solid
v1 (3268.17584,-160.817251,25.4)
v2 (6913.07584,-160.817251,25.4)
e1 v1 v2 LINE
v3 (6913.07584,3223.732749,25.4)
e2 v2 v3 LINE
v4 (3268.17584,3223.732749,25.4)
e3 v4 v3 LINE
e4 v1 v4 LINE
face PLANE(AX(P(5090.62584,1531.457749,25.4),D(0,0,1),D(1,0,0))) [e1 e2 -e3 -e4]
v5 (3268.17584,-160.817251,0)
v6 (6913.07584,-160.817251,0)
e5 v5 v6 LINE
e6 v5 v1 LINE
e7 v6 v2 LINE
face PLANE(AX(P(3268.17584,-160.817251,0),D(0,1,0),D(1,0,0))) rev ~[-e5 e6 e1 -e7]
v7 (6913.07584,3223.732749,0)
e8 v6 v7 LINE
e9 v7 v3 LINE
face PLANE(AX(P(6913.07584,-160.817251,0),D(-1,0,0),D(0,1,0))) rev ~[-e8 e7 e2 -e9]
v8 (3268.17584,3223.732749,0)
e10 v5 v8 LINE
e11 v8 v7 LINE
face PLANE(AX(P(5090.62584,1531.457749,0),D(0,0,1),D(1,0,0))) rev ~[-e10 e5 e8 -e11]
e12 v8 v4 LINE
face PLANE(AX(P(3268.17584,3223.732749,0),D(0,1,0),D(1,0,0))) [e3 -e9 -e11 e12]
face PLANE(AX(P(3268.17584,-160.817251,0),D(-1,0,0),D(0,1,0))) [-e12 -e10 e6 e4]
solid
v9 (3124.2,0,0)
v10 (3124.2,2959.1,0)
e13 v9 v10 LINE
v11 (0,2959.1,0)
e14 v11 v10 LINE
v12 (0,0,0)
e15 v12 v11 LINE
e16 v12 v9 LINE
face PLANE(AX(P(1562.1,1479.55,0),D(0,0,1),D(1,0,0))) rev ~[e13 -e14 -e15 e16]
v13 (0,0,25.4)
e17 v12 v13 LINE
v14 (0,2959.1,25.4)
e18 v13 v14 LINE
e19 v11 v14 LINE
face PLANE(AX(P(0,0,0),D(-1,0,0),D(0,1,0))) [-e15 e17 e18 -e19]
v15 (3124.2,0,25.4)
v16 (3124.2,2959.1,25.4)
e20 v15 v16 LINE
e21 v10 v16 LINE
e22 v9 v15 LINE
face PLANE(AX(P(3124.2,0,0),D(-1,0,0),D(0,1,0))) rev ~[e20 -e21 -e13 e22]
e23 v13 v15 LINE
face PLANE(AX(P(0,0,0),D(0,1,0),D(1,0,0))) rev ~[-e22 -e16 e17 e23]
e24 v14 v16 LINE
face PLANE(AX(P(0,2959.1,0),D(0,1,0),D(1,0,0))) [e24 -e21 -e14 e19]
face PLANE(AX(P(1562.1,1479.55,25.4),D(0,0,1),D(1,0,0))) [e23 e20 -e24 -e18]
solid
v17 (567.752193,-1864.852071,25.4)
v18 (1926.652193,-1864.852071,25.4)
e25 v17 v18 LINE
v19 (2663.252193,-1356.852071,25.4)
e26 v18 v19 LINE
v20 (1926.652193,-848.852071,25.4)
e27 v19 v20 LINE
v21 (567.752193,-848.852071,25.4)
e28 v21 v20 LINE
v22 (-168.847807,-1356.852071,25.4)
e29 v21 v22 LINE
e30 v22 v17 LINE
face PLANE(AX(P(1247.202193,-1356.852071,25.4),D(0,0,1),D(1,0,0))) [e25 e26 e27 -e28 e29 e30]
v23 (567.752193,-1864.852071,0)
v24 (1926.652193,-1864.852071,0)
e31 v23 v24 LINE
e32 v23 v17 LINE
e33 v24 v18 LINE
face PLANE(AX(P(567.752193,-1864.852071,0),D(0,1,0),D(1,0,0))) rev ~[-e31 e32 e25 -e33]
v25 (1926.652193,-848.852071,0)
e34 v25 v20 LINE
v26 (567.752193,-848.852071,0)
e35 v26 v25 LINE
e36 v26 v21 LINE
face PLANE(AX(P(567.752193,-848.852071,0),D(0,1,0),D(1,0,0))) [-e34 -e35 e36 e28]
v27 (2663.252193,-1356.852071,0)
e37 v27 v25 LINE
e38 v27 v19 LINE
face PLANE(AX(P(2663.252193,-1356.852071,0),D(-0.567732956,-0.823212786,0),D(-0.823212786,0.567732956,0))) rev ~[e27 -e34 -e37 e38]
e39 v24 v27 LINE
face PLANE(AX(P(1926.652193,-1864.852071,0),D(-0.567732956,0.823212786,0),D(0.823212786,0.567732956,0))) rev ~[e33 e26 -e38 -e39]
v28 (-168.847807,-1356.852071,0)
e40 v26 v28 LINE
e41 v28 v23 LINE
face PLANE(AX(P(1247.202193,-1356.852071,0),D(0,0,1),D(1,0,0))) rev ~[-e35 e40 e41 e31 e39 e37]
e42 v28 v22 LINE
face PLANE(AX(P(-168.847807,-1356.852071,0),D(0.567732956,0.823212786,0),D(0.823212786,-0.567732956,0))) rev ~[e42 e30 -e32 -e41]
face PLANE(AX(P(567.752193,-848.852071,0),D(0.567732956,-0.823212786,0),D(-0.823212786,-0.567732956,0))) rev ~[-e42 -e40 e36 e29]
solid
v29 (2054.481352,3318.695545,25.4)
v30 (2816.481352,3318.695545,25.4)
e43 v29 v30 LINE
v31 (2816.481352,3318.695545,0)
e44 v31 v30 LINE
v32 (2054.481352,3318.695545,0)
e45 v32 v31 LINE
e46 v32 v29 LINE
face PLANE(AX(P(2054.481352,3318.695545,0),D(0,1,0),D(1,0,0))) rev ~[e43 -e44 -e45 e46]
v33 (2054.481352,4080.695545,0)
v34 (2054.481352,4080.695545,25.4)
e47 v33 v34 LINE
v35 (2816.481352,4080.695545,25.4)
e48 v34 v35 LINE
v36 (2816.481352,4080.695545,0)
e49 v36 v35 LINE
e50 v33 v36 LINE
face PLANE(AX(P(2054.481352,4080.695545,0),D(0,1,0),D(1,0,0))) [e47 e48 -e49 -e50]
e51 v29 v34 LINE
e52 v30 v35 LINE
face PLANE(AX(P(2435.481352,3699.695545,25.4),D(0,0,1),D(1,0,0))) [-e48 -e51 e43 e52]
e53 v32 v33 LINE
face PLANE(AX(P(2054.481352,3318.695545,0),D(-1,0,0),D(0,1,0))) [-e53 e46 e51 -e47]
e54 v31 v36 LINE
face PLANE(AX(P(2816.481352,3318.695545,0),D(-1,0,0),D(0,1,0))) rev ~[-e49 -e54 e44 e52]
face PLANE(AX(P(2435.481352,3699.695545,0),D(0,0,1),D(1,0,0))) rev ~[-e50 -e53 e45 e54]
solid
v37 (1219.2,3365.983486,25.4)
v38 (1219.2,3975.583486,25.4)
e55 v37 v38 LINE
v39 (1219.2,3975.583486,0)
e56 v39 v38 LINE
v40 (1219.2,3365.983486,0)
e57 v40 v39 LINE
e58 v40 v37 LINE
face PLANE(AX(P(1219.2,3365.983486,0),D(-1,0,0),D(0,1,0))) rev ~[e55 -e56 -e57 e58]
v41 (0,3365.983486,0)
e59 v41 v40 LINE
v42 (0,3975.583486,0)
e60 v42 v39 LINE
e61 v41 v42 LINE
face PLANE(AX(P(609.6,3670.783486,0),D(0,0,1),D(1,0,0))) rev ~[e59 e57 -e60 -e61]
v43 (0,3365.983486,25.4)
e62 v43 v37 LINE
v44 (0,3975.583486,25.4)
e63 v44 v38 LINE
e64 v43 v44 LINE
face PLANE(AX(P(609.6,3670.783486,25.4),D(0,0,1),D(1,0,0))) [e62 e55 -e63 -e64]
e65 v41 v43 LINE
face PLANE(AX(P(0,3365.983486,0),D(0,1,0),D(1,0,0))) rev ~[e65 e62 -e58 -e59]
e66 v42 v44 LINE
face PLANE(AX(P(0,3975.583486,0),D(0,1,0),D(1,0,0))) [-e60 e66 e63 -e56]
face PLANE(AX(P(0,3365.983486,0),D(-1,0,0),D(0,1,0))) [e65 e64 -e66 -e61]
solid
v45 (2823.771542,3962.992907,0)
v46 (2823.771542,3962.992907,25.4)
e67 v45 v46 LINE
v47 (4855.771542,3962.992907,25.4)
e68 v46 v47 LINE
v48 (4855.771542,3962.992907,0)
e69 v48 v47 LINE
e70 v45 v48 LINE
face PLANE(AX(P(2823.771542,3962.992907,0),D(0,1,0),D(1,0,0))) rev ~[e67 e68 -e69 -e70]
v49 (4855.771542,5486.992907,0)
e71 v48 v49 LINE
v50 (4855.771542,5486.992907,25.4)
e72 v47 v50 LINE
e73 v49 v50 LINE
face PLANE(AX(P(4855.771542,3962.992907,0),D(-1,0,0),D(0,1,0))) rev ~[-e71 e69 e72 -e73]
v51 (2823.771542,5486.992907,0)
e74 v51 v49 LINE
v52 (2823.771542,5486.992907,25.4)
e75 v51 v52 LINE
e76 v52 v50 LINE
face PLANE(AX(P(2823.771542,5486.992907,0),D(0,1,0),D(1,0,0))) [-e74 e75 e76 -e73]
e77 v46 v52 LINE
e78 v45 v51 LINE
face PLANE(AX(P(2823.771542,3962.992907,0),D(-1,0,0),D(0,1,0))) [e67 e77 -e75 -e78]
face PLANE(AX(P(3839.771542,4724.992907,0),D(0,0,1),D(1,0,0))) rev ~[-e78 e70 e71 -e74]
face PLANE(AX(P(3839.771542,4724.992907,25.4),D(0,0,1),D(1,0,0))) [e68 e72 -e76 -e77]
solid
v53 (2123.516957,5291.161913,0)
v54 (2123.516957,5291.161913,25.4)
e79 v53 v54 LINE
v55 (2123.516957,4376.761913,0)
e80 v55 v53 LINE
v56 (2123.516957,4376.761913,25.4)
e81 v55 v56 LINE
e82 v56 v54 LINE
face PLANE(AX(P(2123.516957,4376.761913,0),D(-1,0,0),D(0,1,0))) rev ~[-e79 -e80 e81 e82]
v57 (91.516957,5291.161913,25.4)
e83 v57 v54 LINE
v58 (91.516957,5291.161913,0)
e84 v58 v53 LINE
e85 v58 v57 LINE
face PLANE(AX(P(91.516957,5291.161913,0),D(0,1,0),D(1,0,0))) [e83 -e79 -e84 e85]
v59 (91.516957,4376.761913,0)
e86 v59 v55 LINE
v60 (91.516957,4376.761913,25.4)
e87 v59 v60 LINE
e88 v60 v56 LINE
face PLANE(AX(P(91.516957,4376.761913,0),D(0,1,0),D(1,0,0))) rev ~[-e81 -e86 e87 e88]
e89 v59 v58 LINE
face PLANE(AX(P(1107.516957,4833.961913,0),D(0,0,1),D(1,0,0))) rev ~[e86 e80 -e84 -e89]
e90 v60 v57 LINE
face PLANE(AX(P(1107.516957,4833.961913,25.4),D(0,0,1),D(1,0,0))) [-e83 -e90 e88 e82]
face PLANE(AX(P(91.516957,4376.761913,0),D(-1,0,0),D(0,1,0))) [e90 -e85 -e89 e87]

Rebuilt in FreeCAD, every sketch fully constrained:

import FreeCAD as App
import Part
import Sketcher
from FreeCAD import Vector
Q = App.Units.Quantity

doc = App.newDocument("Part")
body = doc.addObject("PartDesign::Body", "Body")

# Sketch on XY plane
sketch1 = body.newObject("Sketcher::SketchObject", "Sketch")
sketch1.AttachmentSupport = (doc.getObject("XY_Plane"), [""])
sketch1.MapMode = "FlatFace"
sketch1.addGeometry(Part.LineSegment(Vector(0, 2959.1, 0), Vector(0, 0, 0)), False)
sketch1.addGeometry(Part.LineSegment(Vector(0, 0, 0), Vector(3124.2, 0, 0)), False)
sketch1.addGeometry(Part.LineSegment(Vector(3124.2, 0, 0), Vector(3124.2, 2959.1, 0)), False)
sketch1.addGeometry(Part.LineSegment(Vector(3124.2, 2959.1, 0), Vector(0, 2959.1, 0)), False)
sketch1.addConstraint(Sketcher.Constraint("Coincident", 0, 2, 1, 1))
sketch1.addConstraint(Sketcher.Constraint("Coincident", 1, 2, 2, 1))
sketch1.addConstraint(Sketcher.Constraint("Coincident", 2, 2, 3, 1))
sketch1.addConstraint(Sketcher.Constraint("Coincident", 3, 2, 0, 1))
sketch1.addConstraint(Sketcher.Constraint("Vertical", 0))
sketch1.addConstraint(Sketcher.Constraint("Horizontal", 1))
sketch1.addConstraint(Sketcher.Constraint("Vertical", 2))
sketch1.addConstraint(Sketcher.Constraint("Horizontal", 3))
sketch1.addConstraint(Sketcher.Constraint("Coincident", 0, 2, -1, 1))
sketch1.addConstraint(Sketcher.Constraint("DistanceX", 1, 1, 1, 2, Q("123 in")))
sketch1.addConstraint(Sketcher.Constraint("DistanceY", 0, 2, 0, 1, Q("116.5 in")))
pad1 = body.newObject("PartDesign::Pad", "Pad")
pad1.Profile = sketch1
pad1.Length = Q("1 in")
body2 = doc.addObject("PartDesign::Body", "Body001")

# Sketch on XY plane
sketch2 = body2.newObject("Sketcher::SketchObject", "Sketch001")
sketch2.AttachmentSupport = (doc.getObject("XY_Plane001"), [""])
sketch2.MapMode = "FlatFace"
sketch2.addGeometry(Part.LineSegment(Vector(3268.17584, 3223.732749, 0), Vector(3268.17584, -160.817251, 0)), False)
sketch2.addGeometry(Part.LineSegment(Vector(3268.17584, -160.817251, 0), Vector(6913.07584, -160.817251, 0)), False)
sketch2.addGeometry(Part.LineSegment(Vector(6913.07584, -160.817251, 0), Vector(6913.07584, 3223.732749, 0)), False)
sketch2.addGeometry(Part.LineSegment(Vector(6913.07584, 3223.732749, 0), Vector(3268.17584, 3223.732749, 0)), False)
sketch2.addConstraint(Sketcher.Constraint("Coincident", 0, 2, 1, 1))
sketch2.addConstraint(Sketcher.Constraint("Coincident", 1, 2, 2, 1))
sketch2.addConstraint(Sketcher.Constraint("Coincident", 2, 2, 3, 1))
sketch2.addConstraint(Sketcher.Constraint("Coincident", 3, 2, 0, 1))
sketch2.addConstraint(Sketcher.Constraint("Vertical", 0))
sketch2.addConstraint(Sketcher.Constraint("Horizontal", 1))
sketch2.addConstraint(Sketcher.Constraint("Vertical", 2))
sketch2.addConstraint(Sketcher.Constraint("Horizontal", 3))
sketch2.addConstraint(Sketcher.Constraint("DistanceX", 1, 1, 1, 2, Q("143.5 in")))
sketch2.addConstraint(Sketcher.Constraint("DistanceY", 0, 2, 0, 1, Q("133.25 in")))
sketch2.addConstraint(Sketcher.Constraint("DistanceX", -1, 1, 0, 2, Q("3268.17584 mm")))
sketch2.addConstraint(Sketcher.Constraint("DistanceY", 0, 2, -1, 1, Q("160.817251 mm")))
pad2 = body2.newObject("PartDesign::Pad", "Pad001")
pad2.Profile = sketch2
pad2.Length = Q("1 in")
body3 = doc.addObject("PartDesign::Body", "Body002")

# Sketch on XY plane
sketch3 = body3.newObject("Sketcher::SketchObject", "Sketch002")
sketch3.AttachmentSupport = (doc.getObject("XY_Plane002"), [""])
sketch3.MapMode = "FlatFace"
sketch3.addGeometry(Part.LineSegment(Vector(567.752193, -1864.852071, 0), Vector(1926.652193, -1864.852071, 0)), False)
sketch3.addGeometry(Part.LineSegment(Vector(1926.652193, -1864.852071, 0), Vector(2663.252193, -1356.852071, 0)), False)
sketch3.addGeometry(Part.LineSegment(Vector(2663.252193, -1356.852071, 0), Vector(1926.652193, -848.852071, 0)), False)
sketch3.addGeometry(Part.LineSegment(Vector(1926.652193, -848.852071, 0), Vector(567.752193, -848.852071, 0)), False)
sketch3.addGeometry(Part.LineSegment(Vector(567.752193, -848.852071, 0), Vector(-168.847807, -1356.852071, 0)), False)
sketch3.addGeometry(Part.LineSegment(Vector(-168.847807, -1356.852071, 0), Vector(567.752193, -1864.852071, 0)), False)
sketch3.addConstraint(Sketcher.Constraint("Coincident", 0, 2, 1, 1))
sketch3.addConstraint(Sketcher.Constraint("Coincident", 1, 2, 2, 1))
sketch3.addConstraint(Sketcher.Constraint("Coincident", 2, 2, 3, 1))
sketch3.addConstraint(Sketcher.Constraint("Coincident", 3, 2, 4, 1))
sketch3.addConstraint(Sketcher.Constraint("Coincident", 4, 2, 5, 1))
sketch3.addConstraint(Sketcher.Constraint("Coincident", 5, 2, 0, 1))
sketch3.addConstraint(Sketcher.Constraint("Horizontal", 0))
sketch3.addConstraint(Sketcher.Constraint("Horizontal", 3))
sketch3.addConstraint(Sketcher.Constraint("Parallel", 1, 4))
sketch3.addConstraint(Sketcher.Constraint("Parallel", 2, 5))
sketch3.addConstraint(Sketcher.Constraint("Horizontal", 1, 2, 4, 2))
sketch3.addConstraint(Sketcher.Constraint("Vertical", 0, 2, 2, 2))
sketch3.addConstraint(Sketcher.Constraint("Vertical", 3, 2, 5, 2))
sketch3.addConstraint(Sketcher.Constraint("DistanceX", 0, 1, 0, 2, Q("53.5 in")))
sketch3.addConstraint(Sketcher.Constraint("DistanceX", 0, 2, 1, 2, Q("29 in")))
sketch3.addConstraint(Sketcher.Constraint("DistanceY", 0, 2, 1, 2, Q("20 in")))
sketch3.addConstraint(Sketcher.Constraint("DistanceY", 0, 2, -1, 1, Q("1864.852071 mm")))
sketch3.addConstraint(Sketcher.Constraint("DistanceX", -1, 1, 0, 2, Q("1926.652193 mm")))
pad3 = body3.newObject("PartDesign::Pad", "Pad002")
pad3.Profile = sketch3
pad3.Length = Q("1 in")
body4 = doc.addObject("PartDesign::Body", "Body003")

# Sketch on XY plane
sketch4 = body4.newObject("Sketcher::SketchObject", "Sketch003")
sketch4.AttachmentSupport = (doc.getObject("XY_Plane003"), [""])
sketch4.MapMode = "FlatFace"
sketch4.addGeometry(Part.LineSegment(Vector(0, 3975.583486, 0), Vector(0, 3365.983486, 0)), False)
sketch4.addGeometry(Part.LineSegment(Vector(0, 3365.983486, 0), Vector(1219.2, 3365.983486, 0)), False)
sketch4.addGeometry(Part.LineSegment(Vector(1219.2, 3365.983486, 0), Vector(1219.2, 3975.583486, 0)), False)
sketch4.addGeometry(Part.LineSegment(Vector(1219.2, 3975.583486, 0), Vector(0, 3975.583486, 0)), False)
sketch4.addConstraint(Sketcher.Constraint("Coincident", 0, 2, 1, 1))
sketch4.addConstraint(Sketcher.Constraint("Coincident", 1, 2, 2, 1))
sketch4.addConstraint(Sketcher.Constraint("Coincident", 2, 2, 3, 1))
sketch4.addConstraint(Sketcher.Constraint("Coincident", 3, 2, 0, 1))
sketch4.addConstraint(Sketcher.Constraint("Vertical", 0))
sketch4.addConstraint(Sketcher.Constraint("Horizontal", 1))
sketch4.addConstraint(Sketcher.Constraint("Vertical", 2))
sketch4.addConstraint(Sketcher.Constraint("Horizontal", 3))
sketch4.addConstraint(Sketcher.Constraint("PointOnObject", 0, 2, -2))
sketch4.addConstraint(Sketcher.Constraint("DistanceX", 1, 1, 1, 2, Q("48 in")))
sketch4.addConstraint(Sketcher.Constraint("DistanceY", 0, 2, 0, 1, Q("24 in")))
sketch4.addConstraint(Sketcher.Constraint("DistanceY", -1, 1, 0, 2, Q("3365.983486 mm")))
pad4 = body4.newObject("PartDesign::Pad", "Pad003")
pad4.Profile = sketch4
pad4.Length = Q("1 in")
body5 = doc.addObject("PartDesign::Body", "Body004")

# Sketch on XY plane
sketch5 = body5.newObject("Sketcher::SketchObject", "Sketch004")
sketch5.AttachmentSupport = (doc.getObject("XY_Plane004"), [""])
sketch5.MapMode = "FlatFace"
sketch5.addGeometry(Part.LineSegment(Vector(91.516957, 5291.161913, 0), Vector(91.516957, 4376.761913, 0)), False)
sketch5.addGeometry(Part.LineSegment(Vector(91.516957, 4376.761913, 0), Vector(2123.516957, 4376.761913, 0)), False)
sketch5.addGeometry(Part.LineSegment(Vector(2123.516957, 4376.761913, 0), Vector(2123.516957, 5291.161913, 0)), False)
sketch5.addGeometry(Part.LineSegment(Vector(2123.516957, 5291.161913, 0), Vector(91.516957, 5291.161913, 0)), False)
sketch5.addConstraint(Sketcher.Constraint("Coincident", 0, 2, 1, 1))
sketch5.addConstraint(Sketcher.Constraint("Coincident", 1, 2, 2, 1))
sketch5.addConstraint(Sketcher.Constraint("Coincident", 2, 2, 3, 1))
sketch5.addConstraint(Sketcher.Constraint("Coincident", 3, 2, 0, 1))
sketch5.addConstraint(Sketcher.Constraint("Vertical", 0))
sketch5.addConstraint(Sketcher.Constraint("Horizontal", 1))
sketch5.addConstraint(Sketcher.Constraint("Vertical", 2))
sketch5.addConstraint(Sketcher.Constraint("Horizontal", 3))
sketch5.addConstraint(Sketcher.Constraint("DistanceX", 1, 1, 1, 2, Q("80 in")))
sketch5.addConstraint(Sketcher.Constraint("DistanceY", 0, 2, 0, 1, Q("36 in")))
sketch5.addConstraint(Sketcher.Constraint("DistanceX", -1, 1, 0, 2, Q("91.516957 mm")))
sketch5.addConstraint(Sketcher.Constraint("DistanceY", -1, 1, 0, 2, Q("4376.761913 mm")))
pad5 = body5.newObject("PartDesign::Pad", "Pad004")
pad5.Profile = sketch5
pad5.Length = Q("1 in")
body6 = doc.addObject("PartDesign::Body", "Body005")

# Sketch on XY plane
sketch6 = body6.newObject("Sketcher::SketchObject", "Sketch005")
sketch6.AttachmentSupport = (doc.getObject("XY_Plane005"), [""])
sketch6.MapMode = "FlatFace"
sketch6.addGeometry(Part.LineSegment(Vector(2054.481352, 4080.695545, 0), Vector(2054.481352, 3318.695545, 0)), False)
sketch6.addGeometry(Part.LineSegment(Vector(2054.481352, 3318.695545, 0), Vector(2816.481352, 3318.695545, 0)), False)
sketch6.addGeometry(Part.LineSegment(Vector(2816.481352, 3318.695545, 0), Vector(2816.481352, 4080.695545, 0)), False)
sketch6.addGeometry(Part.LineSegment(Vector(2816.481352, 4080.695545, 0), Vector(2054.481352, 4080.695545, 0)), False)
sketch6.addConstraint(Sketcher.Constraint("Coincident", 0, 2, 1, 1))
sketch6.addConstraint(Sketcher.Constraint("Coincident", 1, 2, 2, 1))
sketch6.addConstraint(Sketcher.Constraint("Coincident", 2, 2, 3, 1))
sketch6.addConstraint(Sketcher.Constraint("Coincident", 3, 2, 0, 1))
sketch6.addConstraint(Sketcher.Constraint("Vertical", 0))
sketch6.addConstraint(Sketcher.Constraint("Horizontal", 1))
sketch6.addConstraint(Sketcher.Constraint("Vertical", 2))
sketch6.addConstraint(Sketcher.Constraint("Horizontal", 3))
sketch6.addConstraint(Sketcher.Constraint("Equal", 3, 0))
sketch6.addConstraint(Sketcher.Constraint("DistanceX", 1, 1, 1, 2, Q("30 in")))
sketch6.addConstraint(Sketcher.Constraint("DistanceX", -1, 1, 0, 2, Q("2054.481352 mm")))
sketch6.addConstraint(Sketcher.Constraint("DistanceY", -1, 1, 0, 2, Q("3318.695545 mm")))
pad6 = body6.newObject("PartDesign::Pad", "Pad005")
pad6.Profile = sketch6
pad6.Length = Q("1 in")
body7 = doc.addObject("PartDesign::Body", "Body006")

# Sketch on XY plane
sketch7 = body7.newObject("Sketcher::SketchObject", "Sketch006")
sketch7.AttachmentSupport = (doc.getObject("XY_Plane006"), [""])
sketch7.MapMode = "FlatFace"
sketch7.addGeometry(Part.LineSegment(Vector(2823.771542, 5486.992907, 0), Vector(2823.771542, 3962.992907, 0)), False)
sketch7.addGeometry(Part.LineSegment(Vector(2823.771542, 3962.992907, 0), Vector(4855.771542, 3962.992907, 0)), False)
sketch7.addGeometry(Part.LineSegment(Vector(4855.771542, 3962.992907, 0), Vector(4855.771542, 5486.992907, 0)), False)
sketch7.addGeometry(Part.LineSegment(Vector(4855.771542, 5486.992907, 0), Vector(2823.771542, 5486.992907, 0)), False)
sketch7.addConstraint(Sketcher.Constraint("Coincident", 0, 2, 1, 1))
sketch7.addConstraint(Sketcher.Constraint("Coincident", 1, 2, 2, 1))
sketch7.addConstraint(Sketcher.Constraint("Coincident", 2, 2, 3, 1))
sketch7.addConstraint(Sketcher.Constraint("Coincident", 3, 2, 0, 1))
sketch7.addConstraint(Sketcher.Constraint("Vertical", 0))
sketch7.addConstraint(Sketcher.Constraint("Horizontal", 1))
sketch7.addConstraint(Sketcher.Constraint("Vertical", 2))
sketch7.addConstraint(Sketcher.Constraint("Horizontal", 3))
sketch7.addConstraint(Sketcher.Constraint("DistanceX", 1, 1, 1, 2, Q("80 in")))
sketch7.addConstraint(Sketcher.Constraint("DistanceY", 0, 2, 0, 1, Q("60 in")))
sketch7.addConstraint(Sketcher.Constraint("DistanceX", -1, 1, 0, 2, Q("2823.771542 mm")))
sketch7.addConstraint(Sketcher.Constraint("DistanceY", -1, 1, 0, 2, Q("3962.992907 mm")))
pad7 = body7.newObject("PartDesign::Pad", "Pad006")
pad7.Profile = sketch7
pad7.Length = Q("1 in")

doc.recompute()
